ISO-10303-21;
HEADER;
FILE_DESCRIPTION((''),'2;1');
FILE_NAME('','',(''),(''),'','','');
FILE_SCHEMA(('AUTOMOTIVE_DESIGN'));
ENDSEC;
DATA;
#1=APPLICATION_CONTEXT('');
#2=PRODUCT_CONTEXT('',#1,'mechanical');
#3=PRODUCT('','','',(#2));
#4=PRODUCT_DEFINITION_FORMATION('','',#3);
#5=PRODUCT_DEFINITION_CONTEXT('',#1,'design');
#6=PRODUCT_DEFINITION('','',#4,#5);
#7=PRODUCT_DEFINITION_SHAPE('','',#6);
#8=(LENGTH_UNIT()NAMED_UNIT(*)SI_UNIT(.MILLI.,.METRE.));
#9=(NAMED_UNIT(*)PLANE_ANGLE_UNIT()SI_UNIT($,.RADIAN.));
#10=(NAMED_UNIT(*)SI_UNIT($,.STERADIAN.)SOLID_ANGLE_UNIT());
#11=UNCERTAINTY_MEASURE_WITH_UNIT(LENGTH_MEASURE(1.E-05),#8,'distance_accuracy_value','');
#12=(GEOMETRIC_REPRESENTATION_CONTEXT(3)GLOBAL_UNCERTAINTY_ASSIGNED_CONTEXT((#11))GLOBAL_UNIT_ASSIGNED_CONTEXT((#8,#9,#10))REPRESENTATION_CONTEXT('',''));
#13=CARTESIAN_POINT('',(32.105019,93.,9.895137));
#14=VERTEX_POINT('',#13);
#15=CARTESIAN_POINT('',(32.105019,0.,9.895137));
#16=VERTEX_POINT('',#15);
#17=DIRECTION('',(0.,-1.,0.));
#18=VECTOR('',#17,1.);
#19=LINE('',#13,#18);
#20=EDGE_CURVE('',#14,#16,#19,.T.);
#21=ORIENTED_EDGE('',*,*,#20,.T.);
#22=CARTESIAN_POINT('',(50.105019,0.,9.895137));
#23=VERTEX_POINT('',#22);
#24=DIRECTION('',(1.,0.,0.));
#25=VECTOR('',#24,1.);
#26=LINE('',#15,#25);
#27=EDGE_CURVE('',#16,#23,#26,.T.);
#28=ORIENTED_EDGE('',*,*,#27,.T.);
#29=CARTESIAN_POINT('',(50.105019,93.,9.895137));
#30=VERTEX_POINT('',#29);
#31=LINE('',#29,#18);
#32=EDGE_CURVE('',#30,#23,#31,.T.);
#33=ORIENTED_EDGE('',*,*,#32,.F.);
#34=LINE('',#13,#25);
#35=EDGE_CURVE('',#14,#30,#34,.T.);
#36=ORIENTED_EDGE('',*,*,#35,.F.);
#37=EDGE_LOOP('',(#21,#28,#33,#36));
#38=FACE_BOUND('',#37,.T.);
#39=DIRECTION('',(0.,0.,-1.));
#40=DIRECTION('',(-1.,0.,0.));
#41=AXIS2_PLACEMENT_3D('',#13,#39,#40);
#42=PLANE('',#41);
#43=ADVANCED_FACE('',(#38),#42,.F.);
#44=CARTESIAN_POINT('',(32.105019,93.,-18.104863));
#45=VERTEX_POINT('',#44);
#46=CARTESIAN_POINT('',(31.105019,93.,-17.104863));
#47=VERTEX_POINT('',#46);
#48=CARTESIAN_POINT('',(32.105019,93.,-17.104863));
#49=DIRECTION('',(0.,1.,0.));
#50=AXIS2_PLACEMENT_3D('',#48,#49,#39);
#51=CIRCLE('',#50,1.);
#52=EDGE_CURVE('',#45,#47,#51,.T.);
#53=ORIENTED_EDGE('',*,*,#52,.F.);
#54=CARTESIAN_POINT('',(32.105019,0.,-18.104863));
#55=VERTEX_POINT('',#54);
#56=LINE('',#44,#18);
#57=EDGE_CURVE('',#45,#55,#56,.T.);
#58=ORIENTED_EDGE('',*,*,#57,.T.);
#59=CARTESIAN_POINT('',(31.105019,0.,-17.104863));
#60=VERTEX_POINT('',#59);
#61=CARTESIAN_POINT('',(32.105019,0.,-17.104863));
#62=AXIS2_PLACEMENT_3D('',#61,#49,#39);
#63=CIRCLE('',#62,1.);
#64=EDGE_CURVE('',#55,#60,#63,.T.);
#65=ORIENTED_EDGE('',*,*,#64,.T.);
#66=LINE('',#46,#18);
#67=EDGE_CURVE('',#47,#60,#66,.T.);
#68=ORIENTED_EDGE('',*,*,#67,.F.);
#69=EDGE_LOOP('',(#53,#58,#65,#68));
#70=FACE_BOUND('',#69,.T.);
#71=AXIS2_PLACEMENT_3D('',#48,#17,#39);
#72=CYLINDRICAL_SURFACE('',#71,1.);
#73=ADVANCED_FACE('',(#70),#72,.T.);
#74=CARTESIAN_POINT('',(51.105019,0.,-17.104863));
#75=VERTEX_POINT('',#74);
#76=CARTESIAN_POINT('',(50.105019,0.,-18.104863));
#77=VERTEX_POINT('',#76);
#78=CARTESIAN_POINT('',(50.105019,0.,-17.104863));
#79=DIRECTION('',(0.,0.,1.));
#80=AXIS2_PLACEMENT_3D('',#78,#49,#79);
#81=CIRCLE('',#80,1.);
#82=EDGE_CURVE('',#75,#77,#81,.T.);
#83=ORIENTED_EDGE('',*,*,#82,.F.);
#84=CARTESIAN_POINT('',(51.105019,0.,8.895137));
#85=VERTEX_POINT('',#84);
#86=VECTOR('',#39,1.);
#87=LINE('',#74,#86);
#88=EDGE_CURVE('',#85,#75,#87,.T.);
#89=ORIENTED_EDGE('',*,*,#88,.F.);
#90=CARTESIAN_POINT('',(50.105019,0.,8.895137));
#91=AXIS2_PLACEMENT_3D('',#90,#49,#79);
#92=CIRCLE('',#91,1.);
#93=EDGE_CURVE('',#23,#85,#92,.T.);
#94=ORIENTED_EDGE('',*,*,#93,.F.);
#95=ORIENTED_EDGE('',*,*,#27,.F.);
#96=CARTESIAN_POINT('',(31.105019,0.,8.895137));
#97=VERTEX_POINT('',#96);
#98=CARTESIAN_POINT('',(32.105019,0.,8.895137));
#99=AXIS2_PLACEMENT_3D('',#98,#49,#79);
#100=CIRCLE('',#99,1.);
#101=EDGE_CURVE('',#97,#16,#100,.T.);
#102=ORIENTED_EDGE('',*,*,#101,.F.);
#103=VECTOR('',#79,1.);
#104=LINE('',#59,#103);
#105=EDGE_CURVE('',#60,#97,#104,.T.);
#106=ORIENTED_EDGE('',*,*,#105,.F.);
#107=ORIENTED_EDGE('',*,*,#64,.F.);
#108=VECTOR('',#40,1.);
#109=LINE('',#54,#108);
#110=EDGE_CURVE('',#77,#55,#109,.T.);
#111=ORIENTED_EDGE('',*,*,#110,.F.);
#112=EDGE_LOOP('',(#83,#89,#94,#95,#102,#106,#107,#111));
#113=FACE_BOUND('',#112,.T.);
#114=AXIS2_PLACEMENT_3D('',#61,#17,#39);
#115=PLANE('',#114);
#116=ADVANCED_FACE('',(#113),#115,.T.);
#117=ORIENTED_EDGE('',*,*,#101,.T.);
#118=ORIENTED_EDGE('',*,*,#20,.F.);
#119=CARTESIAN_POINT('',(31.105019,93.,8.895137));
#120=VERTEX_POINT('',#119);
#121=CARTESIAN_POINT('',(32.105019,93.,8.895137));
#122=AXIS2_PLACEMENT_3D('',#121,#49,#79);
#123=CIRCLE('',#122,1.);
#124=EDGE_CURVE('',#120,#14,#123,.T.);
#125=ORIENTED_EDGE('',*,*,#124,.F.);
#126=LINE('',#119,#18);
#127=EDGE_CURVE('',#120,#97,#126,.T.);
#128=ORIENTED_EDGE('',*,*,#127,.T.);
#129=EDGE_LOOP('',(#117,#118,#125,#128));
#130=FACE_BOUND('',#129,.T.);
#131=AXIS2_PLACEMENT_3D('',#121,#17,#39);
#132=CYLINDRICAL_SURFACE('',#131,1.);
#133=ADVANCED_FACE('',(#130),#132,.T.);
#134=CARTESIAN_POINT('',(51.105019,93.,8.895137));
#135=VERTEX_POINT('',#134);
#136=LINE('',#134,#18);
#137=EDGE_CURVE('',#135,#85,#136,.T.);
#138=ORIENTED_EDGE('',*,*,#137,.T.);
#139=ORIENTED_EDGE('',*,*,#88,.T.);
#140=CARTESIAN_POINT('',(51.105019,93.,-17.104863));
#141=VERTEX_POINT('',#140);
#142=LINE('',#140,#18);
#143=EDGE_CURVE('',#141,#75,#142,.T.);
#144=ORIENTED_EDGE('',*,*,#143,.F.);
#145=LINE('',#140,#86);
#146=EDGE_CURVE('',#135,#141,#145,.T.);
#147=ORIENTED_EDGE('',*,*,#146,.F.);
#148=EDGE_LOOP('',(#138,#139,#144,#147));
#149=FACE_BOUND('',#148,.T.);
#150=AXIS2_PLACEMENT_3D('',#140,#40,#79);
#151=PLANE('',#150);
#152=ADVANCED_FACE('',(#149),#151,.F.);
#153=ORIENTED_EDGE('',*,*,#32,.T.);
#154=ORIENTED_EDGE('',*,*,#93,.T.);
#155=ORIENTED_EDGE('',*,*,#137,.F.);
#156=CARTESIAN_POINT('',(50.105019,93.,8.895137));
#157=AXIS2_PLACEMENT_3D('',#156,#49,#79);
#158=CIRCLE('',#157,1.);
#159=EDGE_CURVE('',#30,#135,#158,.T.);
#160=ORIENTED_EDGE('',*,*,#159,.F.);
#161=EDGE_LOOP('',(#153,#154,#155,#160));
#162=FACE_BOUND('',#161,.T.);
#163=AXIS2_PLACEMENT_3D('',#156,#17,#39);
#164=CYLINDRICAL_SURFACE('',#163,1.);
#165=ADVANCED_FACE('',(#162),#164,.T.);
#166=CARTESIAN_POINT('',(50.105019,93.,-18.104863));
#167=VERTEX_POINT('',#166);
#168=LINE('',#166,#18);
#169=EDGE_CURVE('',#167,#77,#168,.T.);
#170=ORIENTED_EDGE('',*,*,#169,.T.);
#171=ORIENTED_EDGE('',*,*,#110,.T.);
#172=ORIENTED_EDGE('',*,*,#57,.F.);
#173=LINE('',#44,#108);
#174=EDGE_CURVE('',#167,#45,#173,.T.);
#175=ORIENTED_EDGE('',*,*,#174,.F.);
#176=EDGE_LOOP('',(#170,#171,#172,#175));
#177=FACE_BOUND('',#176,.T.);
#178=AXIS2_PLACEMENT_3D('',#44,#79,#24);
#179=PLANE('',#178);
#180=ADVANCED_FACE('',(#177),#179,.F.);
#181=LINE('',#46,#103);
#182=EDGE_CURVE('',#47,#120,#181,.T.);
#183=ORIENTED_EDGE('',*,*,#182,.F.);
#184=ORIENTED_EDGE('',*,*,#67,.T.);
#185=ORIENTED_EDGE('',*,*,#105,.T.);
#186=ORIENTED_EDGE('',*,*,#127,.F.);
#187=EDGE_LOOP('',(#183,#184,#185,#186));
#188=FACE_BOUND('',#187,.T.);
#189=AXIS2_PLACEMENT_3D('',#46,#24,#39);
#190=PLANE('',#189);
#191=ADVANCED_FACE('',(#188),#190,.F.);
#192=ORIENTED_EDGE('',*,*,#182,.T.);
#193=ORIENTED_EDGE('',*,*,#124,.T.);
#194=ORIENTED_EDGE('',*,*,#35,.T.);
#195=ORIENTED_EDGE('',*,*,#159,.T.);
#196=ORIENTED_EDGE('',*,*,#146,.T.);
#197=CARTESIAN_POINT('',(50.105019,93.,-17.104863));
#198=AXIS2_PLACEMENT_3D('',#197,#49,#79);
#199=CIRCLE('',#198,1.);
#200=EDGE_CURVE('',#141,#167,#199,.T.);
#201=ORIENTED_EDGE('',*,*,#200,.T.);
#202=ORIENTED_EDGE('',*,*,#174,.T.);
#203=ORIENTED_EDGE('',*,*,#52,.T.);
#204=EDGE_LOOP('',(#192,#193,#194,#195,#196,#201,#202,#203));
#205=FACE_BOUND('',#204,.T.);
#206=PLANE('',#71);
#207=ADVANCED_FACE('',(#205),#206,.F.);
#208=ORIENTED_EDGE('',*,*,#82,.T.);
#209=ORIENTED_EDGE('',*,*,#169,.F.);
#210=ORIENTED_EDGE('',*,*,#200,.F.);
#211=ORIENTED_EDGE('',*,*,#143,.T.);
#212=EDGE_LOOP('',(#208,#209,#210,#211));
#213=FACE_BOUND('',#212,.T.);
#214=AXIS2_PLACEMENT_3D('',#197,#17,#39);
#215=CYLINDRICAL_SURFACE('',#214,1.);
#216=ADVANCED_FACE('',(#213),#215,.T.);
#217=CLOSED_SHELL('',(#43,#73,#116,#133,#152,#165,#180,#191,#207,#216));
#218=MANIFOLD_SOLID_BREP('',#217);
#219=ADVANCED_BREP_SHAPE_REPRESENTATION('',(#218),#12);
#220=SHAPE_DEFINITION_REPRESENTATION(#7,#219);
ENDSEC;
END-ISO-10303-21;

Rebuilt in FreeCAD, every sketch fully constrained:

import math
import FreeCAD as App
import Part
import Sketcher
Q = App.Units.Quantity

doc = App.newDocument("Part")
params = doc.addObject("Spreadsheet::Sheet", "Params")
for row, (alias, value) in enumerate([
    ("sketch1_radius", "1 mm"),
    ("sketch1_width", "18 mm"),
    ("sketch1_height", "26 mm"),
    ("pad1_length", "93 mm"),
], start=1):
    params.set(f"A{row}", alias)
    params.set(f"B{row}", "=" + value)
    params.setAlias(f"B{row}", alias)

body = doc.addObject("PartDesign::Body", "Body")

# Sketch on XZ plane
sketch1 = doc.addObject("Sketcher::SketchObject", "Sketch")
body.addObject(sketch1)
sketch1.AttachmentSupport = (doc.XZ_Plane, [""])
sketch1.MapMode = "FlatFace"
sketch1.addGeometry([
    Part.LineSegment(App.Vector(50.1, -18.1, 0), App.Vector(32.1, -18.1, 0)),  # 0
    Part.ArcOfCircle(Part.Circle(App.Vector(32.1, -17.1, 0), App.Vector(0, 0, 1), 1), math.radians(-180), math.radians(-90)),  # 1
    Part.LineSegment(App.Vector(31.1, -17.1, 0), App.Vector(31.1, 8.9, 0)),  # 2
    Part.ArcOfCircle(Part.Circle(App.Vector(32.1, 8.9, 0), App.Vector(0, 0, 1), 1), math.radians(90), math.radians(180)),  # 3
    Part.LineSegment(App.Vector(32.1, 9.9, 0), App.Vector(50.1, 9.9, 0)),  # 4
    Part.ArcOfCircle(Part.Circle(App.Vector(50.1, 8.9, 0), App.Vector(0, 0, 1), 1), math.radians(0), math.radians(90)),  # 5
    Part.LineSegment(App.Vector(51.1, 8.9, 0), App.Vector(51.1, -17.1, 0)),  # 6
    Part.ArcOfCircle(Part.Circle(App.Vector(50.1, -17.1, 0), App.Vector(0, 0, 1), 1), math.radians(-90), math.radians(0)),  # 7
], False)
sketch1.addConstraint([
    Sketcher.Constraint("Tangent", 0, 2, 1, 2),
    Sketcher.Constraint("Tangent", 1, 1, 2, 1),
    Sketcher.Constraint("Tangent", 2, 2, 3, 2),
    Sketcher.Constraint("Tangent", 3, 1, 4, 1),
    Sketcher.Constraint("Tangent", 4, 2, 5, 2),
    Sketcher.Constraint("Tangent", 5, 1, 6, 1),
    Sketcher.Constraint("Tangent", 6, 2, 7, 2),
    Sketcher.Constraint("Tangent", 7, 1, 0, 1),
    Sketcher.Constraint("Horizontal", 0),
    Sketcher.Constraint("Vertical", 2),
    Sketcher.Constraint("Horizontal", 4),
    Sketcher.Constraint("Vertical", 6),
    Sketcher.Constraint("Equal", 1, 3),
    Sketcher.Constraint("Equal", 3, 5),
    Sketcher.Constraint("Equal", 5, 7),
    Sketcher.Constraint("Radius", 1, Q("1 mm")),
    Sketcher.Constraint("DistanceX", 0, 2, 0, 1, Q("18 mm")),
    Sketcher.Constraint("DistanceY", 2, 1, 2, 2, Q("26 mm")),
    Sketcher.Constraint("DistanceX", -1, 1, 1, 3, Q("32.105019 mm")),
    Sketcher.Constraint("DistanceY", 1, 3, -1, 1, Q("17.104863 mm")),
])
sketch1.setExpression("Constraints[15]", "Params.sketch1_radius")
sketch1.setExpression("Constraints[16]", "Params.sketch1_width")
sketch1.setExpression("Constraints[17]", "Params.sketch1_height")
pad1 = doc.addObject("PartDesign::Pad", "Pad")
body.addObject(pad1)
pad1.Profile = sketch1
pad1.setExpression("Length", "Params.pad1_length")
pad1.Reversed = True

doc.recompute()
